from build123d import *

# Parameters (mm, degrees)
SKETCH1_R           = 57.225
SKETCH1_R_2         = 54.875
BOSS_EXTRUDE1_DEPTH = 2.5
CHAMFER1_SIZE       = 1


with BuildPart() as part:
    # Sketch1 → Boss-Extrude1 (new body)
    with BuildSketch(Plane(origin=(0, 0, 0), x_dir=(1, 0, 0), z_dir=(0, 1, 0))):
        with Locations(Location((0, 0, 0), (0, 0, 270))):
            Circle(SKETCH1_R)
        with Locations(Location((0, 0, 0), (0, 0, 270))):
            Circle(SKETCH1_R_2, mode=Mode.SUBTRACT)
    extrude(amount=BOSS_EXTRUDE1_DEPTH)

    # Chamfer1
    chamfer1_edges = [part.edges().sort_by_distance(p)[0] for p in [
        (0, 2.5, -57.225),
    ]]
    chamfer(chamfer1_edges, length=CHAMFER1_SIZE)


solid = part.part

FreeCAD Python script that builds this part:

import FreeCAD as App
import Part
import Sketcher
Q = App.Units.Quantity


def edges_at(feature, points):
    """Names of the edges that pass closest to the given points."""
    edges = feature.Shape.Edges
    near = lambda p: min(range(len(edges)), key=lambda i: edges[i].distToShape(Part.Vertex(*p))[0])
    return sorted({f"Edge{near(p) + 1}" for p in points})

doc = App.newDocument("Part")
params = doc.addObject("Spreadsheet::Sheet", "Params")
for row, (alias, value) in enumerate([
    ("sketch1_diameter", "114.45 mm"),
    ("sketch1_diameter2", "109.75 mm"),
    ("pad1_length", "2.5 mm"),
    ("chamfer_size", "1 mm"),
], start=1):
    params.set(f"A{row}", alias)
    params.set(f"B{row}", "=" + value)
    params.setAlias(f"B{row}", alias)

body = doc.addObject("PartDesign::Body", "Body")

# Sketch on XZ plane
sketch1 = body.newObject("Sketcher::SketchObject", "Sketch")
sketch1.AttachmentSupport = (doc.getObject("XZ_Plane"), [""])
sketch1.MapMode = "FlatFace"
sketch1.addGeometry([
    Part.Circle(App.Vector(0, 0, 0), App.Vector(0, 0, 1), 57),
    Part.Circle(App.Vector(0, 0, 0), App.Vector(0, 0, 1), 55),
], False)
sketch1.addConstraint([
    Sketcher.Constraint("Coincident", 0, 3, -1, 1),
    Sketcher.Constraint("Coincident", 1, 3, -1, 1),
    Sketcher.Constraint("Diameter", 0, Q("114.45 mm")),
    Sketcher.Constraint("Diameter", 1, Q("109.75 mm")),
])
sketch1.setExpression("Constraints[2]", "Params.sketch1_diameter")
sketch1.setExpression("Constraints[3]", "Params.sketch1_diameter2")
pad1 = body.newObject("PartDesign::Pad", "Pad")
pad1.Profile = sketch1
pad1.setExpression("Length", "Params.pad1_length")
pad1.Reversed = True
doc.recompute()

chamfer = body.newObject("PartDesign::Chamfer", "Chamfer")
chamfer.Base = (pad1, edges_at(pad1, [(0, 2.5, -57.225)]))
chamfer.setExpression("Size", "Params.chamfer_size")

doc.recompute()
